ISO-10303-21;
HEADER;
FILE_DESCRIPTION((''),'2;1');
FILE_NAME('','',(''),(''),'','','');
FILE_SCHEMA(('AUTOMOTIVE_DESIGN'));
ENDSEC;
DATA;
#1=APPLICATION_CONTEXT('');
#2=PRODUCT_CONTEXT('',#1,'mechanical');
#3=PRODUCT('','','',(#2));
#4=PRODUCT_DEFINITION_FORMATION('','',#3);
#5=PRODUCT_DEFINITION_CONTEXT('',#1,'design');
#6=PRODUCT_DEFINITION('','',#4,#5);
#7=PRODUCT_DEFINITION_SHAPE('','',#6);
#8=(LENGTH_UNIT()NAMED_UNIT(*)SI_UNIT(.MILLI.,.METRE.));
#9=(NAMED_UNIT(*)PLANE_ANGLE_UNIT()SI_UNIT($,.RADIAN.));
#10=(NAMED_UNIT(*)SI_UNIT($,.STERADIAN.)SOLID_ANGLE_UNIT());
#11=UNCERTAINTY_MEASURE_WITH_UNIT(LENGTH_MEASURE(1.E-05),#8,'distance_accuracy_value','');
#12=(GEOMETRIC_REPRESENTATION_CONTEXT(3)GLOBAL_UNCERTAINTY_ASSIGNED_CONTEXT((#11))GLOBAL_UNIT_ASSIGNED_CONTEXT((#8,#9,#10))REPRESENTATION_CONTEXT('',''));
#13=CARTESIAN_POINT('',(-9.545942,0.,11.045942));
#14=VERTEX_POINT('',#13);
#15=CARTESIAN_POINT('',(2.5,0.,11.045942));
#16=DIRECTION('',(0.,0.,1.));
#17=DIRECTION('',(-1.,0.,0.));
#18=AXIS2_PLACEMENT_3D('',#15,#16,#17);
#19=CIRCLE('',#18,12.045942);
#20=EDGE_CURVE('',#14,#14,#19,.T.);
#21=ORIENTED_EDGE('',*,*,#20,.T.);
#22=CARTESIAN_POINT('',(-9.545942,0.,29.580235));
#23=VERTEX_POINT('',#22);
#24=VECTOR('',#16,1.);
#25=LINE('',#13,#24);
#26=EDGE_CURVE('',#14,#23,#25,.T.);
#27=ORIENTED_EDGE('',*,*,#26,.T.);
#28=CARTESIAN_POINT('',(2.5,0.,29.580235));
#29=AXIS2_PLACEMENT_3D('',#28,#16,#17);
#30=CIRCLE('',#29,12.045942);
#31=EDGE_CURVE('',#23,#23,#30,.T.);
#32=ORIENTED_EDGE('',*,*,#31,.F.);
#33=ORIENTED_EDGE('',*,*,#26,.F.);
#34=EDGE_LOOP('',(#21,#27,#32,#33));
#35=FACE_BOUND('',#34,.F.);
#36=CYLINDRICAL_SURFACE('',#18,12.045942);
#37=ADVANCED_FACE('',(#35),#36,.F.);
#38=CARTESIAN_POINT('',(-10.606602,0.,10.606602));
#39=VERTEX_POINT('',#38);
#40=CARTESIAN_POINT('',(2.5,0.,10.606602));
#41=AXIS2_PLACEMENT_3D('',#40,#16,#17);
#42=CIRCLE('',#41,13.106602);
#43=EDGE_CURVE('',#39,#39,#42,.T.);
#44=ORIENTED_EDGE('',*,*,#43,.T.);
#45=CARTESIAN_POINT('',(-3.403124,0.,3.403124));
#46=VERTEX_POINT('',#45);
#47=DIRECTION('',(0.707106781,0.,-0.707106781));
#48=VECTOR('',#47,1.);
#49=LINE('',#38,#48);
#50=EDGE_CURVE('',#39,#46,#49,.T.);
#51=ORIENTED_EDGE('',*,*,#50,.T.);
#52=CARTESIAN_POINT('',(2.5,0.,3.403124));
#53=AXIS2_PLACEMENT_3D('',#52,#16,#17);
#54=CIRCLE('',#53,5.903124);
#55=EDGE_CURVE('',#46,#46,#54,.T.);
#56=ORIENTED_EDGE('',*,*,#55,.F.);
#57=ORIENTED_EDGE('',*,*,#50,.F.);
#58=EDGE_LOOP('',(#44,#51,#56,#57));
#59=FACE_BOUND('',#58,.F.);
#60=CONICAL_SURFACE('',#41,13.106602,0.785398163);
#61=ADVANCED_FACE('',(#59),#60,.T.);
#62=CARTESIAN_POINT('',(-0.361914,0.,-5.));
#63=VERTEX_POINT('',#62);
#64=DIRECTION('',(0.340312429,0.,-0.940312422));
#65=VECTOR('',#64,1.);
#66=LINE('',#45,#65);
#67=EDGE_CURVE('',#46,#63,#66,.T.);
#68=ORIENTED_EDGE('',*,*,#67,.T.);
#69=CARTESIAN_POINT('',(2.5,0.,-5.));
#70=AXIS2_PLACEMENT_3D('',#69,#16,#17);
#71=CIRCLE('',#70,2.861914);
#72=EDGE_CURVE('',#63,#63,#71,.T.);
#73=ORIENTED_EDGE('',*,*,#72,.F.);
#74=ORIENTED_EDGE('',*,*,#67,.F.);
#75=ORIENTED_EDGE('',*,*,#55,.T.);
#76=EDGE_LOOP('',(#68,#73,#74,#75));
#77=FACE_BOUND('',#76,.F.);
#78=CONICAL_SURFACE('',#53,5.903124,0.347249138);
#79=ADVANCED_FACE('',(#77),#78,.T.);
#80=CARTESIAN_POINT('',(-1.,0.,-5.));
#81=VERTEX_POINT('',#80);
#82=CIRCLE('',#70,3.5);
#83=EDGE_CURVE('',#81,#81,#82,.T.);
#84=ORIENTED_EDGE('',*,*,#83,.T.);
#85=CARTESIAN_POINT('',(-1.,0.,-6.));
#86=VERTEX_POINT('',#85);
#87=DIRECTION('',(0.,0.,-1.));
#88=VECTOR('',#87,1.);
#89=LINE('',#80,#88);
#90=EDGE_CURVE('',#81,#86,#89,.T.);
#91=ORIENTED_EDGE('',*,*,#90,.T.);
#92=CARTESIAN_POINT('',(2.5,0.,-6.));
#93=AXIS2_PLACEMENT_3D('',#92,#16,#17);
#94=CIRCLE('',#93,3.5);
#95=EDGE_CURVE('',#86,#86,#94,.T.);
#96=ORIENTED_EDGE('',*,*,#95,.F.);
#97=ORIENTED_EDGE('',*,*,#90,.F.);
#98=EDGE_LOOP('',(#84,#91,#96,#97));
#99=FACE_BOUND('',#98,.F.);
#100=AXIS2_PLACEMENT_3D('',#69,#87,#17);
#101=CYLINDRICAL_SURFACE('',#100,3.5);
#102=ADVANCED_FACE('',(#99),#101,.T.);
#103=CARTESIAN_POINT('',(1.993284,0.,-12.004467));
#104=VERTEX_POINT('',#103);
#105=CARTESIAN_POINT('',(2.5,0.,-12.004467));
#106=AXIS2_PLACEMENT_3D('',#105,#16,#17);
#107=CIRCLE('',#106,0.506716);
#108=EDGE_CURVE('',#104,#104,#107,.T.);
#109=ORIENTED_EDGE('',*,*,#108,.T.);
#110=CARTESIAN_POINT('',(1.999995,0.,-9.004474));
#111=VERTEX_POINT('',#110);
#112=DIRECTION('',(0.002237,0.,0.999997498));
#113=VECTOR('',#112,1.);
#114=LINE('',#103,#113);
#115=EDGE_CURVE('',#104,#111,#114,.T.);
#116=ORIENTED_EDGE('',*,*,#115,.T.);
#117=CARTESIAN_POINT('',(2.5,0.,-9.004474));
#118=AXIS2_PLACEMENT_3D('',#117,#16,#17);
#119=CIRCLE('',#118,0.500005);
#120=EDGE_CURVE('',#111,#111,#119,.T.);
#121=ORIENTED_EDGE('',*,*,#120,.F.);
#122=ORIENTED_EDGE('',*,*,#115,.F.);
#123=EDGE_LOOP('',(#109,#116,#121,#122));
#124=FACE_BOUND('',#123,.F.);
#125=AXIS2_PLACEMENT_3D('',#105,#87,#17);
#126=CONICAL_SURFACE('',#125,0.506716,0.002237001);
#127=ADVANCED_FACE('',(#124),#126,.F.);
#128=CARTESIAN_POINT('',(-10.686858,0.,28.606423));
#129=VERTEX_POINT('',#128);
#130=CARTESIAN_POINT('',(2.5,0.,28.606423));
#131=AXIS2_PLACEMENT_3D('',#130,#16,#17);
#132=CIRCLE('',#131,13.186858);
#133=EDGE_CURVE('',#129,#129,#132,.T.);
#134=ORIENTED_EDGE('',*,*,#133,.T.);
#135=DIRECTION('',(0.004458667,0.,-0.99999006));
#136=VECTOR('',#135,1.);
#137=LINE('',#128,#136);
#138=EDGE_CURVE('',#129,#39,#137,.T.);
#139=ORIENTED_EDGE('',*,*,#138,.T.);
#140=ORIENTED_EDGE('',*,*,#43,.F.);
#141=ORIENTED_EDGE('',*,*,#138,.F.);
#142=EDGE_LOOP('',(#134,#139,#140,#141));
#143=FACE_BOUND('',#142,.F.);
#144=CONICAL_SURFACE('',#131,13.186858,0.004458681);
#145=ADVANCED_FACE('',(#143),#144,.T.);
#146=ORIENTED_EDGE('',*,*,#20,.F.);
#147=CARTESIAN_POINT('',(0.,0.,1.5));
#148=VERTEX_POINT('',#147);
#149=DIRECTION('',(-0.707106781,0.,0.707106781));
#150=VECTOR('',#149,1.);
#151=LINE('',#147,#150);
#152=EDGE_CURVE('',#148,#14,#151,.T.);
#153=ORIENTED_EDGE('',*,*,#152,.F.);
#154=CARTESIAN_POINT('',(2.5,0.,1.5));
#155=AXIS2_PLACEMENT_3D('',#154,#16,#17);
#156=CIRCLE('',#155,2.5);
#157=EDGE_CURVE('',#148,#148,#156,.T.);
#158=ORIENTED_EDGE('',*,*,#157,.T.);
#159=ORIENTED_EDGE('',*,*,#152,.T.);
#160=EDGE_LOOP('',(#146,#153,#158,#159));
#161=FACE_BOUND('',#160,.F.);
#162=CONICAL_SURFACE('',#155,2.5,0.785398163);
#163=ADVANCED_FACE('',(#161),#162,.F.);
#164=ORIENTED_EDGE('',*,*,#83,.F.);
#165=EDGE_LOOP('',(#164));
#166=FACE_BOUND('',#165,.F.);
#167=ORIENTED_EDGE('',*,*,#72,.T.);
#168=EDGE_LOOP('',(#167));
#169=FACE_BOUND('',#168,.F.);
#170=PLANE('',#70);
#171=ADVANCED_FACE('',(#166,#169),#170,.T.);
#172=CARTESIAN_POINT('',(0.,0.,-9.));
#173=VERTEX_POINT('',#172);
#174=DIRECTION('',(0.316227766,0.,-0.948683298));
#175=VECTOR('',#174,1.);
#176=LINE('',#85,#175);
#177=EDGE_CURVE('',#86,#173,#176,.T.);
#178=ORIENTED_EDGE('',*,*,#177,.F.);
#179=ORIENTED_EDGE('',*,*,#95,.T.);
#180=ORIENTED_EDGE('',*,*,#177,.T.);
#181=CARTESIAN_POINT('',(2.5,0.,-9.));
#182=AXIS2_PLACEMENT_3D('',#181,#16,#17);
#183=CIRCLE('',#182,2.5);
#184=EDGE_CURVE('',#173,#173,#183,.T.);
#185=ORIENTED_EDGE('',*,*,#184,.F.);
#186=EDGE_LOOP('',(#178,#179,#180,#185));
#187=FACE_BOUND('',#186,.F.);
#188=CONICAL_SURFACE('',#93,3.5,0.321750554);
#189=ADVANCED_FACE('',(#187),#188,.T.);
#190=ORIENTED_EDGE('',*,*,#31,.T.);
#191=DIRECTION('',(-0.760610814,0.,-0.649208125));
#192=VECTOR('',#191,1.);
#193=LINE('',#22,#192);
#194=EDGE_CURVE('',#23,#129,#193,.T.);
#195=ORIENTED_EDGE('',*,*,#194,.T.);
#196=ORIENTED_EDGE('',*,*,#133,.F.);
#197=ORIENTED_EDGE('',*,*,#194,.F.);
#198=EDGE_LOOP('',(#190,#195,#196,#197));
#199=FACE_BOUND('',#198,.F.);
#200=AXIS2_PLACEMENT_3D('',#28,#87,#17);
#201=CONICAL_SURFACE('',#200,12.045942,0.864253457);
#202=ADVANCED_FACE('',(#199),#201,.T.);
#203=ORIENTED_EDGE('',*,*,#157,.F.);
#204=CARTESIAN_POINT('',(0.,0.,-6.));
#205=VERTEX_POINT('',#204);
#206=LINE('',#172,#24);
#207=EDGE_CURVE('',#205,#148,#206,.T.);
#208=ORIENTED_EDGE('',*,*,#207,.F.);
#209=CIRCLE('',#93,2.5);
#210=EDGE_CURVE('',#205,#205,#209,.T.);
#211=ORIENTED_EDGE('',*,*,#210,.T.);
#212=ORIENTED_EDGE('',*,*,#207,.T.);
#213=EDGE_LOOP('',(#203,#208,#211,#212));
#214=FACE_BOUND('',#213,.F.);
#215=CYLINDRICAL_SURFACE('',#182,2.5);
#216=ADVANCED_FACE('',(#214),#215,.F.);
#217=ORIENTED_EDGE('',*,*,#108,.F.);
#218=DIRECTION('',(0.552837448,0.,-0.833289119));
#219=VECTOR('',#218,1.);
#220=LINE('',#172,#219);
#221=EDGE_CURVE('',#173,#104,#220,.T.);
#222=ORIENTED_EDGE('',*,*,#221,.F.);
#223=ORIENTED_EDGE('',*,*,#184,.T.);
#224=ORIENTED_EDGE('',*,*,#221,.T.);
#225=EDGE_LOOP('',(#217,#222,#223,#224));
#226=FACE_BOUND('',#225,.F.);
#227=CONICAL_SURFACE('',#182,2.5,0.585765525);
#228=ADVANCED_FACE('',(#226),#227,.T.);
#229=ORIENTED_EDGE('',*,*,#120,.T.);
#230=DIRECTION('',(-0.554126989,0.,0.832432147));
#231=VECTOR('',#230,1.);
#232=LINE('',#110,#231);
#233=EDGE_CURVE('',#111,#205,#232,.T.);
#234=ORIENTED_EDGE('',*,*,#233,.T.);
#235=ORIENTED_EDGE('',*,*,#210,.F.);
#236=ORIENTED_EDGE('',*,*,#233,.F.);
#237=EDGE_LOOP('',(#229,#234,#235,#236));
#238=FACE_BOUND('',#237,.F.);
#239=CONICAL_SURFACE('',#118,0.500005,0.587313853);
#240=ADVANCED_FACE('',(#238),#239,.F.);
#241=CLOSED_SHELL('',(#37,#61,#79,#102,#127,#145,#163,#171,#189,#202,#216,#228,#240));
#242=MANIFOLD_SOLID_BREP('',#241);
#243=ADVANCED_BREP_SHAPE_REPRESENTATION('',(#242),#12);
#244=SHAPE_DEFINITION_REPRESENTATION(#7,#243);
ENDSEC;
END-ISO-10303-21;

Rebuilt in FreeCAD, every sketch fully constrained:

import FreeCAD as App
import Part
import Sketcher
from FreeCAD import Vector
Q = App.Units.Quantity

doc = App.newDocument("Part")
body = doc.addObject("PartDesign::Body", "Body")

sketch1 = doc.addObject("Sketcher::SketchObject", "Sketch")
body.addObject(sketch1)
sketch1.AttachmentSupport = (doc.XZ_Plane, [""])
sketch1.MapMode = "FlatFace"
sketch1.addGeometry(Part.LineSegment(Vector(0, 1.5, 0), Vector(-9.5, 11, 0)), False)
sketch1.addGeometry(Part.LineSegment(Vector(-9.5, 11, 0), Vector(-9.5, 29.6, 0)), False)
sketch1.addGeometry(Part.LineSegment(Vector(-9.5, 29.6, 0), Vector(-10.7, 28.6, 0)), False)
sketch1.addGeometry(Part.LineSegment(Vector(-10.7, 28.6, 0), Vector(-10.6, 10.6, 0)), False)
sketch1.addGeometry(Part.LineSegment(Vector(-10.6, 10.6, 0), Vector(-3.4, 3.4, 0)), False)
sketch1.addGeometry(Part.LineSegment(Vector(-3.4, 3.4, 0), Vector(-0.4, -5, 0)), False)
sketch1.addGeometry(Part.LineSegment(Vector(-0.4, -5, 0), Vector(-1, -5, 0)), False)
sketch1.addGeometry(Part.LineSegment(Vector(-1, -5, 0), Vector(-1, -6, 0)), False)
sketch1.addGeometry(Part.LineSegment(Vector(-1, -6, 0), Vector(0, -9, 0)), False)
sketch1.addGeometry(Part.LineSegment(Vector(0, -9, 0), Vector(2, -12, 0)), False)
sketch1.addGeometry(Part.LineSegment(Vector(2, -12, 0), Vector(2, -9, 0)), False)
sketch1.addGeometry(Part.LineSegment(Vector(2, -9, 0), Vector(0, -6, 0)), False)
sketch1.addGeometry(Part.LineSegment(Vector(0, -6, 0), Vector(0, 1.5, 0)), False)
sketch1.addGeometry(Part.LineSegment(Vector(2.5, -12, 0), Vector(2.5, 29.6, 0)), True)
sketch1.addConstraint(Sketcher.Constraint("Coincident", 0, 2, 1, 1))
sketch1.addConstraint(Sketcher.Constraint("Coincident", 1, 2, 2, 1))
sketch1.addConstraint(Sketcher.Constraint("Coincident", 2, 2, 3, 1))
sketch1.addConstraint(Sketcher.Constraint("Coincident", 3, 2, 4, 1))
sketch1.addConstraint(Sketcher.Constraint("Coincident", 4, 2, 5, 1))
sketch1.addConstraint(Sketcher.Constraint("Coincident", 5, 2, 6, 1))
sketch1.addConstraint(Sketcher.Constraint("Coincident", 6, 2, 7, 1))
sketch1.addConstraint(Sketcher.Constraint("Coincident", 7, 2, 8, 1))
sketch1.addConstraint(Sketcher.Constraint("Coincident", 8, 2, 9, 1))
sketch1.addConstraint(Sketcher.Constraint("Coincident", 9, 2, 10, 1))
sketch1.addConstraint(Sketcher.Constraint("Coincident", 10, 2, 11, 1))
sketch1.addConstraint(Sketcher.Constraint("Coincident", 11, 2, 12, 1))
sketch1.addConstraint(Sketcher.Constraint("Coincident", 12, 2, 0, 1))
sketch1.addConstraint(Sketcher.Constraint("Vertical", 1))
sketch1.addConstraint(Sketcher.Constraint("Horizontal", 6))
sketch1.addConstraint(Sketcher.Constraint("Vertical", 7))
sketch1.addConstraint(Sketcher.Constraint("Vertical", 12))
sketch1.addConstraint(Sketcher.Constraint("Vertical", 13))
sketch1.addConstraint(Sketcher.Constraint("PointOnObject", 8, 2, -2))
sketch1.addConstraint(Sketcher.Constraint("PointOnObject", 11, 2, -2))
sketch1.addConstraint(Sketcher.Constraint("Parallel", 0, 4))
sketch1.addConstraint(Sketcher.Constraint("Horizontal", 7, 2, 11, 2))
sketch1.addConstraint(Sketcher.Constraint("Horizontal", 9, 2, 13, 1))
sketch1.addConstraint(Sketcher.Constraint("Horizontal", 1, 2, 13, 2))
sketch1.addConstraint(Sketcher.Constraint("DistanceY", 7, 2, 7, 1, Q("1 mm")))
sketch1.addConstraint(Sketcher.Constraint("Angle", 0, Q("135 deg")))
sketch1.addConstraint(Sketcher.Constraint("Distance", 3, Q("18 mm")))
sketch1.addConstraint(Sketcher.Constraint("Distance", 10, Q("3.000001 mm")))
sketch1.addConstraint(Sketcher.Constraint("DistanceY", 12, 1, 12, 2, Q("7.5 mm")))
sketch1.addConstraint(Sketcher.Constraint("DistanceY", 5, 2, -1, 1, Q("5 mm")))
sketch1.addConstraint(Sketcher.Constraint("DistanceX", 6, 2, -1, 1, Q("1 mm")))
sketch1.addConstraint(Sketcher.Constraint("DistanceY", 8, 2, -1, 1, Q("9 mm")))
sketch1.addConstraint(Sketcher.Constraint("Distance", 0, Q("13.500001 mm")))
sketch1.addConstraint(Sketcher.Constraint("Distance", 2, Q("1.5 mm")))
sketch1.addConstraint(Sketcher.Constraint("DistanceX", -1, 1, 13, 1, Q("2.5 mm")))
sketch1.addConstraint(Sketcher.Constraint("DistanceY", 4, 2, 2, 2, Q("25.203299 mm")))
sketch1.addConstraint(Sketcher.Constraint("DistanceX", 5, 2, 9, 2, Q("2.355198 mm")))
sketch1.addConstraint(Sketcher.Constraint("Distance", 9, Q("3.605552 mm")))
sketch1.addConstraint(Sketcher.Constraint("Distance", 11, Q("3.609272 mm")))
sketch1.addConstraint(Sketcher.Constraint("DistanceX", 6, 2, 6, 1, Q("0.638086 mm")))
sketch1.addConstraint(Sketcher.Constraint("DistanceY", 1, 1, 1, 2, Q("18.534293 mm")))
sketch1.addConstraint(Sketcher.Constraint("DistanceX", 2, 2, -1, 1, Q("10.686858 mm")))
sketch1.addConstraint(Sketcher.Constraint("DistanceX", 3, 2, 0, 2, Q("1.06066 mm")))
revolution = doc.addObject("PartDesign::Revolution", "Revolution")
body.addObject(revolution)
revolution.Profile = sketch1
revolution.ReferenceAxis = (sketch1, ["Axis0"])
revolution.Angle = 360

doc.recompute()
